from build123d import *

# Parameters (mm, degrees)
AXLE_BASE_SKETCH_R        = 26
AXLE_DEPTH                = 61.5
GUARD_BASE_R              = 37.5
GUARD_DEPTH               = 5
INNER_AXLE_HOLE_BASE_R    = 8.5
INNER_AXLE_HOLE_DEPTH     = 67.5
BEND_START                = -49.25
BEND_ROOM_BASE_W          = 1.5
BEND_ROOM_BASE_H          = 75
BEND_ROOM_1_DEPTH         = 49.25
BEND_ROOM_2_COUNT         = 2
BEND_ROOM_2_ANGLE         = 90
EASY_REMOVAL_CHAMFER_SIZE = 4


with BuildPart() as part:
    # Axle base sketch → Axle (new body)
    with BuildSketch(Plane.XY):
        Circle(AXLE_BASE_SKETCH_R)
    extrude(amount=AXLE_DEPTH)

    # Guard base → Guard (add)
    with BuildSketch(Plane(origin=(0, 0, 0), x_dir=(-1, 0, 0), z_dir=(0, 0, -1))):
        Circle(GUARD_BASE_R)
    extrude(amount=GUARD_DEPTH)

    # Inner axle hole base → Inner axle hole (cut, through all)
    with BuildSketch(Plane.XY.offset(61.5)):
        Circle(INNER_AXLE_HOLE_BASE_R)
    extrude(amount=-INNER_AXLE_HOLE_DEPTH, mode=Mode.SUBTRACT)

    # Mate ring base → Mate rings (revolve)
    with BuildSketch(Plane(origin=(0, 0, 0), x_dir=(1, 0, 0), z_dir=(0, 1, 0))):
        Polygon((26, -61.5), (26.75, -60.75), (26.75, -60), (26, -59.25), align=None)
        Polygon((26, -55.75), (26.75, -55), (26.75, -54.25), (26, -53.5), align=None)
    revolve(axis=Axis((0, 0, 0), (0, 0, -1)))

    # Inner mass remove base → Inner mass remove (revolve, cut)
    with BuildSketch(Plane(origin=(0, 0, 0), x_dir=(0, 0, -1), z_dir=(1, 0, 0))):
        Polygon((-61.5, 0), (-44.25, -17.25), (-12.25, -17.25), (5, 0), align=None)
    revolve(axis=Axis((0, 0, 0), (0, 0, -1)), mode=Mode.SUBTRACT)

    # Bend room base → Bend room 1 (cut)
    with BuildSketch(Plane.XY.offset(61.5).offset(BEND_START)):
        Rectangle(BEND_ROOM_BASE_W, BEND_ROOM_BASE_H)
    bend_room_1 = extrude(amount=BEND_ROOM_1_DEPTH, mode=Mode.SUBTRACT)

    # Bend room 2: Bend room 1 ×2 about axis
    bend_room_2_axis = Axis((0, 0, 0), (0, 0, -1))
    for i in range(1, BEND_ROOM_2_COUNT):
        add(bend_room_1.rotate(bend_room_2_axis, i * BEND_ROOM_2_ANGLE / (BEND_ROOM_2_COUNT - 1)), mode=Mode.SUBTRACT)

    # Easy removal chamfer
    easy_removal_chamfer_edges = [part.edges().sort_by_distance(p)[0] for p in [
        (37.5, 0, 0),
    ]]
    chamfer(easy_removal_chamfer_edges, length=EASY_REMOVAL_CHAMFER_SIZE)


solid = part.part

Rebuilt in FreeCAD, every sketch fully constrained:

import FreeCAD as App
import Part
import Sketcher
Q = App.Units.Quantity


def edges_at(feature, points):
    """Names of the edges that pass closest to the given points."""
    edges = feature.Shape.Edges
    near = lambda p: min(range(len(edges)), key=lambda i: edges[i].distToShape(Part.Vertex(*p))[0])
    return sorted({f"Edge{near(p) + 1}" for p in points})


def add_polygon(sketch, points):
    """Adds a closed chain of lines whose ends are joined by coincident constraints."""
    first, n = sketch.GeometryCount, len(points)
    for a, b in zip(points, points[1:] + points[:1]):
        sketch.addGeometry(Part.LineSegment(App.Vector(*a, 0), App.Vector(*b, 0)), False)
    for i in range(n):
        sketch.addConstraint(Sketcher.Constraint("Coincident", first + i, 2, first + (i + 1) % n, 1))

doc = App.newDocument("Part")
body = doc.addObject("PartDesign::Body", "Body")

sketch1 = doc.addObject("Sketcher::SketchObject", "Sketch")
body.addObject(sketch1)
sketch1.AttachmentSupport = (doc.XY_Plane, [""])
sketch1.MapMode = "FlatFace"
sketch1.addGeometry(Part.Circle(App.Vector(0, 0, 0), App.Vector(0, 0, 1), 26), False)
sketch1.addConstraint([
    Sketcher.Constraint("Coincident", 0, 3, -1, 1),
    Sketcher.Constraint("Diameter", 0, Q("52 mm")),
])
pad1 = doc.addObject("PartDesign::Pad", "Pad")
body.addObject(pad1)
pad1.Profile = sketch1
pad1.Length = 61.5

sketch2 = doc.addObject("Sketcher::SketchObject", "Sketch001")
body.addObject(sketch2)
sketch2.AttachmentSupport = (doc.XY_Plane, [""])
sketch2.MapMode = "FlatFace"
sketch2.addGeometry(Part.Circle(App.Vector(0, 0, 0), App.Vector(0, 0, 1), 37.5), False)
sketch2.addConstraint([
    Sketcher.Constraint("Coincident", 0, 3, -1, 1),
    Sketcher.Constraint("Diameter", 0, Q("75 mm")),
])
pad2 = doc.addObject("PartDesign::Pad", "Pad001")
body.addObject(pad2)
pad2.Profile = sketch2
pad2.Length = 5
pad2.Reversed = True

sketch3 = doc.addObject("Sketcher::SketchObject", "Sketch002")
body.addObject(sketch3)
sketch3.AttachmentSupport = (doc.XY_Plane, [""])
sketch3.MapMode = "FlatFace"
sketch3.AttachmentOffset = App.Placement(App.Vector(0, 0, 61.5), App.Rotation())
sketch3.addGeometry(Part.Circle(App.Vector(0, 0, 0), App.Vector(0, 0, 1), 8.5), False)
sketch3.addConstraint([
    Sketcher.Constraint("Coincident", 0, 3, -1, 1),
    Sketcher.Constraint("Diameter", 0, Q("17 mm")),
])
pocket1 = doc.addObject("PartDesign::Pocket", "Pocket")
body.addObject(pocket1)
pocket1.Profile = sketch3
pocket1.Type = "ThroughAll"

sketch4 = doc.addObject("Sketcher::SketchObject", "Sketch003")
body.addObject(sketch4)
sketch4.AttachmentSupport = (doc.XZ_Plane, [""])
sketch4.MapMode = "FlatFace"
add_polygon(sketch4, [(26, 61.5), (26.75, 60.75), (26.75, 60), (26, 59.25)])
add_polygon(sketch4, [(26, 55.75), (26.75, 55), (26.75, 54.25), (26, 53.5)])
sketch4.addConstraint([
    Sketcher.Constraint("Vertical", 1),
    Sketcher.Constraint("Vertical", 3),
    Sketcher.Constraint("Vertical", 5),
    Sketcher.Constraint("Vertical", 7),
    Sketcher.Constraint("Perpendicular", 0, 2),
    Sketcher.Constraint("Perpendicular", 2, 4),
    Sketcher.Constraint("Perpendicular", 4, 6),
    Sketcher.Constraint("Vertical", 1, 2, 4, 2),
    Sketcher.Constraint("Vertical", 3, 2, 6, 2),
    Sketcher.Constraint("Equal", 1, 5),
    Sketcher.Constraint("Equal", 0, 2),
    Sketcher.Constraint("DistanceY", -1, 1, 1, 2, Q("60 mm")),
    Sketcher.Constraint("DistanceX", -1, 1, 2, 2, Q("26 mm")),
    Sketcher.Constraint("DistanceY", -1, 1, 4, 2, Q("55 mm")),
    Sketcher.Constraint("DistanceY", 5, 2, 2, 2, Q("5 mm")),
    Sketcher.Constraint("DistanceY", 1, 2, 1, 1, Q("0.75 mm")),
])
revolution = doc.addObject("PartDesign::Revolution", "Revolution")
body.addObject(revolution)
revolution.Profile = sketch4
revolution.ReferenceAxis = (sketch4, ["V_Axis"])
revolution.Angle = 360

sketch5 = doc.addObject("Sketcher::SketchObject", "Sketch004")
body.addObject(sketch5)
sketch5.AttachmentSupport = (doc.YZ_Plane, [""])
sketch5.MapMode = "FlatFace"
add_polygon(sketch5, [(0, 61.5), (-17.25, 44.25), (-17.25, 12.25), (0, -5)])
sketch5.addConstraint([
    Sketcher.Constraint("Vertical", 1),
    Sketcher.Constraint("Vertical", 3),
    Sketcher.Constraint("PointOnObject", 2, 2, -2),
    Sketcher.Constraint("Perpendicular", 0, 2),
    Sketcher.Constraint("Equal", 0, 2),
    Sketcher.Constraint("DistanceY", 1, 2, 1, 1, Q("32 mm")),
    Sketcher.Constraint("DistanceY", 3, 1, 3, 2, Q("66.5 mm")),
    Sketcher.Constraint("DistanceY", 2, 2, -1, 1, Q("5 mm")),
])
groove = doc.addObject("PartDesign::Groove", "Groove")
body.addObject(groove)
groove.Profile = sketch5
groove.ReferenceAxis = (sketch5, ["V_Axis"])
groove.Angle = 360

sketch6 = doc.addObject("Sketcher::SketchObject", "Sketch005")
body.addObject(sketch6)
sketch6.AttachmentSupport = (doc.XY_Plane, [""])
sketch6.MapMode = "FlatFace"
sketch6.AttachmentOffset = App.Placement(App.Vector(0, 0, 12.25), App.Rotation())
add_polygon(sketch6, [(-0.75, 37.5), (-0.75, -37.5), (0.75, -37.5), (0.75, 37.5)])
sketch6.addConstraint([
    Sketcher.Constraint("Vertical", 0),
    Sketcher.Constraint("Horizontal", 1),
    Sketcher.Constraint("Vertical", 2),
    Sketcher.Constraint("Horizontal", 3),
    Sketcher.Constraint("Symmetric", 0, 2, 2, 2, -1, 1),
    Sketcher.Constraint("DistanceY", 0, 2, 0, 1, Q("75 mm")),
    Sketcher.Constraint("DistanceX", 1, 1, 1, 2, Q("1.5 mm")),
])
pocket2 = doc.addObject("PartDesign::Pocket", "Pocket001")
body.addObject(pocket2)
pocket2.Profile = sketch6
pocket2.Length = 49.25
pocket2.Reversed = True
doc.recompute()

polarpattern = doc.addObject("PartDesign::PolarPattern", "PolarPattern")
body.addObject(polarpattern)
polarpattern.Originals = [pocket2]
polarpattern.Axis = (doc.Z_Axis, [""])
polarpattern.Angle = 90
polarpattern.Occurrences = 2
polarpattern.Reversed = True
body.Tip = polarpattern
doc.recompute()

chamfer = doc.addObject("PartDesign::Chamfer", "Chamfer")
body.addObject(chamfer)
chamfer.Base = (polarpattern, edges_at(polarpattern, [(37.5, 0, 0)]))
chamfer.Size = 4

doc.recompute()
